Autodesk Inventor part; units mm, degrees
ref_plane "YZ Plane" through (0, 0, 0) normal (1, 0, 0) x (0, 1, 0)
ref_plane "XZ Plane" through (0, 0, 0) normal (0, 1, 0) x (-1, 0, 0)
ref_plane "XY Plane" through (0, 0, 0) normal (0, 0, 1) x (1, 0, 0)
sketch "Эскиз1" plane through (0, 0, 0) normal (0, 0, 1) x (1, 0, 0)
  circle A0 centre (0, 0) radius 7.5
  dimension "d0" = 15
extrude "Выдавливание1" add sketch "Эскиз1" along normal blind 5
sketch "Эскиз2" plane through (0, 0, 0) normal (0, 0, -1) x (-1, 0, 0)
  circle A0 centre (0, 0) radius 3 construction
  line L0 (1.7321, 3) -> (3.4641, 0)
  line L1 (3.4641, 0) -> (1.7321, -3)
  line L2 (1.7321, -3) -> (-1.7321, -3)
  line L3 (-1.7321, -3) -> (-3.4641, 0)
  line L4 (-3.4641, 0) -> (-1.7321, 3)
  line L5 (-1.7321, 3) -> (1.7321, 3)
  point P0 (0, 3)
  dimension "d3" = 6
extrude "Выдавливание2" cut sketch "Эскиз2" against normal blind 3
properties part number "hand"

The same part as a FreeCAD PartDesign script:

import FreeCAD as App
import Part
import Sketcher
Q = App.Units.Quantity


def add_polygon(sketch, points):
    """Adds a closed chain of lines whose ends are joined by coincident constraints."""
    first, n = sketch.GeometryCount, len(points)
    for a, b in zip(points, points[1:] + points[:1]):
        sketch.addGeometry(Part.LineSegment(App.Vector(*a, 0), App.Vector(*b, 0)), False)
    for i in range(n):
        sketch.addConstraint(Sketcher.Constraint("Coincident", first + i, 2, first + (i + 1) % n, 1))

doc = App.newDocument("Part")
body = doc.addObject("PartDesign::Body", "Body")

sketch1 = body.newObject("Sketcher::SketchObject", "Sketch")
sketch1.AttachmentSupport = (doc.getObject("XY_Plane"), [""])
sketch1.MapMode = "FlatFace"
sketch1.addGeometry(Part.Circle(App.Vector(0, 0, 0), App.Vector(0, 0, 1), 8), False)
sketch1.addConstraint([
    Sketcher.Constraint("Coincident", 0, 3, -1, 1),
    Sketcher.Constraint("Diameter", 0, Q("15 mm")),
])
pad1 = body.newObject("PartDesign::Pad", "Pad")
pad1.Profile = sketch1
pad1.Length = 5

sketch2 = body.newObject("Sketcher::SketchObject", "Sketch001")
sketch2.AttachmentSupport = (doc.getObject("XY_Plane"), [""])
sketch2.MapMode = "FlatFace"
add_polygon(sketch2, [(-3.5, 0), (-1.7, 3), (1.7, 3), (3.5, 0), (1.7, -3), (-1.7, -3)])
sketch2.addConstraint([
    Sketcher.Constraint("Horizontal", 1),
    Sketcher.Constraint("Horizontal", 4),
    Sketcher.Constraint("Symmetric", 0, 2, 3, 2, -1, 1),
    Sketcher.Constraint("Symmetric", 2, 2, 5, 2, -1, 1),
    Sketcher.Constraint("PointOnObject", 2, 2, -1),
    Sketcher.Constraint("Parallel", 2, 5),
    Sketcher.Constraint("Vertical", 1, 2, 3, 2),
    Sketcher.Constraint("DistanceY", 3, 2, 1, 2, Q("6 mm")),
    Sketcher.Constraint("Angle", 0, Q("60.0007 deg")),
    Sketcher.Constraint("DistanceX", 1, 1, 1, 2, Q("3.4642 mm")),
])
pocket1 = body.newObject("PartDesign::Pocket", "Pocket")
pocket1.Profile = sketch2
pocket1.Length = 3
pocket1.Reversed = True

doc.recompute()
